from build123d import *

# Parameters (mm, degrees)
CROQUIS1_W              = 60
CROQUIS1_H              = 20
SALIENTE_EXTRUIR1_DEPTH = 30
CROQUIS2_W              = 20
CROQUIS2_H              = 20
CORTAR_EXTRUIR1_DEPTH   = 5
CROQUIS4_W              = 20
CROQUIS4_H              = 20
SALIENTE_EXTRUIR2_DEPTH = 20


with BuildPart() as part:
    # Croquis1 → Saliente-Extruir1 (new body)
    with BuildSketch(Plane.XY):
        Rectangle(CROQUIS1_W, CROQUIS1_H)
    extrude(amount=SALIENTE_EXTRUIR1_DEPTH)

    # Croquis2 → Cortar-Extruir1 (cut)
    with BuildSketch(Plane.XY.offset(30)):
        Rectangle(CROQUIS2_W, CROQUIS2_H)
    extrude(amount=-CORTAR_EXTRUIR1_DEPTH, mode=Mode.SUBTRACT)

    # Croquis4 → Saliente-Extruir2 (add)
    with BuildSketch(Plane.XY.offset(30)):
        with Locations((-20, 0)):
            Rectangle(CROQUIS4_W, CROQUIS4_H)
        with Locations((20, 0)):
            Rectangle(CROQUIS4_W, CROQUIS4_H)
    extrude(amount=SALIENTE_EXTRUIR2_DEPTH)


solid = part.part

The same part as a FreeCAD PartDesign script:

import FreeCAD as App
import Part
import Sketcher
from FreeCAD import Vector

doc = App.newDocument("Part")
body = doc.addObject("PartDesign::Body", "Body")

# Sketch on XY plane
sketch1 = doc.addObject("Sketcher::SketchObject", "Sketch")
body.addObject(sketch1)
sketch1.AttachmentSupport = (doc.XY_Plane, [""])
sketch1.MapMode = "FlatFace"
sketch1.addGeometry([
    Part.LineSegment(Vector(-30, 10, 0), Vector(-30, -10, 0)),
    Part.LineSegment(Vector(-30, -10, 0), Vector(30, -10, 0)),
    Part.LineSegment(Vector(30, -10, 0), Vector(30, 10, 0)),
    Part.LineSegment(Vector(30, 10, 0), Vector(-30, 10, 0)),
], False)
sketch1.addConstraint([
    Sketcher.Constraint("Coincident", 0, 2, 1, 1),
    Sketcher.Constraint("Coincident", 1, 2, 2, 1),
    Sketcher.Constraint("Coincident", 2, 2, 3, 1),
    Sketcher.Constraint("Coincident", 3, 2, 0, 1),
    Sketcher.Constraint("Vertical", 0),
    Sketcher.Constraint("Horizontal", 1),
    Sketcher.Constraint("Vertical", 2),
    Sketcher.Constraint("Horizontal", 3),
    Sketcher.Constraint("Symmetric", 0, 2, 2, 2, -1, 1),
    Sketcher.Constraint("DistanceX", 1, 1, 1, 2, 60.0),
    Sketcher.Constraint("DistanceY", 0, 2, 0, 1, 20.0),
])
pad1 = doc.addObject("PartDesign::Pad", "Pad")
body.addObject(pad1)
pad1.Profile = sketch1
pad1.Length = 30

# Sketch on XY plane
sketch2 = doc.addObject("Sketcher::SketchObject", "Sketch001")
body.addObject(sketch2)
sketch2.AttachmentSupport = (doc.XY_Plane, [""])
sketch2.MapMode = "FlatFace"
sketch2.AttachmentOffset = App.Placement(Vector(0, 0, 30), App.Rotation())
sketch2.addGeometry([
    Part.LineSegment(Vector(-10, 10, 0), Vector(-10, -10, 0)),
    Part.LineSegment(Vector(-10, -10, 0), Vector(10, -10, 0)),
    Part.LineSegment(Vector(10, -10, 0), Vector(10, 10, 0)),
    Part.LineSegment(Vector(10, 10, 0), Vector(-10, 10, 0)),
], False)
sketch2.addConstraint([
    Sketcher.Constraint("Coincident", 0, 2, 1, 1),
    Sketcher.Constraint("Coincident", 1, 2, 2, 1),
    Sketcher.Constraint("Coincident", 2, 2, 3, 1),
    Sketcher.Constraint("Coincident", 3, 2, 0, 1),
    Sketcher.Constraint("Vertical", 0),
    Sketcher.Constraint("Horizontal", 1),
    Sketcher.Constraint("Vertical", 2),
    Sketcher.Constraint("Horizontal", 3),
    Sketcher.Constraint("Symmetric", 0, 2, 2, 2, -1, 1),
    Sketcher.Constraint("Equal", 3, 0),
    Sketcher.Constraint("DistanceX", 1, 1, 1, 2, 20.0),
])
pocket1 = doc.addObject("PartDesign::Pocket", "Pocket")
body.addObject(pocket1)
pocket1.Profile = sketch2
pocket1.Length = 5

# Sketch on XY plane
sketch3 = doc.addObject("Sketcher::SketchObject", "Sketch002")
body.addObject(sketch3)
sketch3.AttachmentSupport = (doc.XY_Plane, [""])
sketch3.MapMode = "FlatFace"
sketch3.AttachmentOffset = App.Placement(Vector(0, 0, 30), App.Rotation())
sketch3.addGeometry([
    Part.LineSegment(Vector(-30, 10, 0), Vector(-30, -10, 0)),  # 0
    Part.LineSegment(Vector(-30, -10, 0), Vector(-10, -10, 0)),  # 1
    Part.LineSegment(Vector(-10, -10, 0), Vector(-10, 10, 0)),  # 2
    Part.LineSegment(Vector(-10, 10, 0), Vector(-30, 10, 0)),  # 3
    Part.LineSegment(Vector(10, 10, 0), Vector(10, -10, 0)),  # 4
    Part.LineSegment(Vector(10, -10, 0), Vector(30, -10, 0)),  # 5
    Part.LineSegment(Vector(30, -10, 0), Vector(30, 10, 0)),  # 6
    Part.LineSegment(Vector(30, 10, 0), Vector(10, 10, 0)),  # 7
], False)
sketch3.addConstraint([
    Sketcher.Constraint("Coincident", 0, 2, 1, 1),
    Sketcher.Constraint("Coincident", 1, 2, 2, 1),
    Sketcher.Constraint("Coincident", 2, 2, 3, 1),
    Sketcher.Constraint("Coincident", 3, 2, 0, 1),
    Sketcher.Constraint("Coincident", 4, 2, 5, 1),
    Sketcher.Constraint("Coincident", 5, 2, 6, 1),
    Sketcher.Constraint("Coincident", 6, 2, 7, 1),
    Sketcher.Constraint("Coincident", 7, 2, 4, 1),
    Sketcher.Constraint("Vertical", 0),
    Sketcher.Constraint("Horizontal", 1),
    Sketcher.Constraint("Vertical", 2),
    Sketcher.Constraint("Horizontal", 3),
    Sketcher.Constraint("Vertical", 4),
    Sketcher.Constraint("Horizontal", 5),
    Sketcher.Constraint("Vertical", 6),
    Sketcher.Constraint("Horizontal", 7),
    Sketcher.Constraint("Symmetric", 2, 2, 4, 2, -1, 1),
    Sketcher.Constraint("Symmetric", 0, 2, 6, 2, -1, 1),
    Sketcher.Constraint("Horizontal", 1, 2, 4, 2),
    Sketcher.Constraint("Equal", 7, 0),
    Sketcher.Constraint("DistanceX", 1, 1, 1, 2, 20.0),
    Sketcher.Constraint("DistanceX", 0, 2, -1, 1, 30.0),
])
pad2 = doc.addObject("PartDesign::Pad", "Pad001")
body.addObject(pad2)
pad2.Profile = sketch3
pad2.Length = 20

doc.recompute()
